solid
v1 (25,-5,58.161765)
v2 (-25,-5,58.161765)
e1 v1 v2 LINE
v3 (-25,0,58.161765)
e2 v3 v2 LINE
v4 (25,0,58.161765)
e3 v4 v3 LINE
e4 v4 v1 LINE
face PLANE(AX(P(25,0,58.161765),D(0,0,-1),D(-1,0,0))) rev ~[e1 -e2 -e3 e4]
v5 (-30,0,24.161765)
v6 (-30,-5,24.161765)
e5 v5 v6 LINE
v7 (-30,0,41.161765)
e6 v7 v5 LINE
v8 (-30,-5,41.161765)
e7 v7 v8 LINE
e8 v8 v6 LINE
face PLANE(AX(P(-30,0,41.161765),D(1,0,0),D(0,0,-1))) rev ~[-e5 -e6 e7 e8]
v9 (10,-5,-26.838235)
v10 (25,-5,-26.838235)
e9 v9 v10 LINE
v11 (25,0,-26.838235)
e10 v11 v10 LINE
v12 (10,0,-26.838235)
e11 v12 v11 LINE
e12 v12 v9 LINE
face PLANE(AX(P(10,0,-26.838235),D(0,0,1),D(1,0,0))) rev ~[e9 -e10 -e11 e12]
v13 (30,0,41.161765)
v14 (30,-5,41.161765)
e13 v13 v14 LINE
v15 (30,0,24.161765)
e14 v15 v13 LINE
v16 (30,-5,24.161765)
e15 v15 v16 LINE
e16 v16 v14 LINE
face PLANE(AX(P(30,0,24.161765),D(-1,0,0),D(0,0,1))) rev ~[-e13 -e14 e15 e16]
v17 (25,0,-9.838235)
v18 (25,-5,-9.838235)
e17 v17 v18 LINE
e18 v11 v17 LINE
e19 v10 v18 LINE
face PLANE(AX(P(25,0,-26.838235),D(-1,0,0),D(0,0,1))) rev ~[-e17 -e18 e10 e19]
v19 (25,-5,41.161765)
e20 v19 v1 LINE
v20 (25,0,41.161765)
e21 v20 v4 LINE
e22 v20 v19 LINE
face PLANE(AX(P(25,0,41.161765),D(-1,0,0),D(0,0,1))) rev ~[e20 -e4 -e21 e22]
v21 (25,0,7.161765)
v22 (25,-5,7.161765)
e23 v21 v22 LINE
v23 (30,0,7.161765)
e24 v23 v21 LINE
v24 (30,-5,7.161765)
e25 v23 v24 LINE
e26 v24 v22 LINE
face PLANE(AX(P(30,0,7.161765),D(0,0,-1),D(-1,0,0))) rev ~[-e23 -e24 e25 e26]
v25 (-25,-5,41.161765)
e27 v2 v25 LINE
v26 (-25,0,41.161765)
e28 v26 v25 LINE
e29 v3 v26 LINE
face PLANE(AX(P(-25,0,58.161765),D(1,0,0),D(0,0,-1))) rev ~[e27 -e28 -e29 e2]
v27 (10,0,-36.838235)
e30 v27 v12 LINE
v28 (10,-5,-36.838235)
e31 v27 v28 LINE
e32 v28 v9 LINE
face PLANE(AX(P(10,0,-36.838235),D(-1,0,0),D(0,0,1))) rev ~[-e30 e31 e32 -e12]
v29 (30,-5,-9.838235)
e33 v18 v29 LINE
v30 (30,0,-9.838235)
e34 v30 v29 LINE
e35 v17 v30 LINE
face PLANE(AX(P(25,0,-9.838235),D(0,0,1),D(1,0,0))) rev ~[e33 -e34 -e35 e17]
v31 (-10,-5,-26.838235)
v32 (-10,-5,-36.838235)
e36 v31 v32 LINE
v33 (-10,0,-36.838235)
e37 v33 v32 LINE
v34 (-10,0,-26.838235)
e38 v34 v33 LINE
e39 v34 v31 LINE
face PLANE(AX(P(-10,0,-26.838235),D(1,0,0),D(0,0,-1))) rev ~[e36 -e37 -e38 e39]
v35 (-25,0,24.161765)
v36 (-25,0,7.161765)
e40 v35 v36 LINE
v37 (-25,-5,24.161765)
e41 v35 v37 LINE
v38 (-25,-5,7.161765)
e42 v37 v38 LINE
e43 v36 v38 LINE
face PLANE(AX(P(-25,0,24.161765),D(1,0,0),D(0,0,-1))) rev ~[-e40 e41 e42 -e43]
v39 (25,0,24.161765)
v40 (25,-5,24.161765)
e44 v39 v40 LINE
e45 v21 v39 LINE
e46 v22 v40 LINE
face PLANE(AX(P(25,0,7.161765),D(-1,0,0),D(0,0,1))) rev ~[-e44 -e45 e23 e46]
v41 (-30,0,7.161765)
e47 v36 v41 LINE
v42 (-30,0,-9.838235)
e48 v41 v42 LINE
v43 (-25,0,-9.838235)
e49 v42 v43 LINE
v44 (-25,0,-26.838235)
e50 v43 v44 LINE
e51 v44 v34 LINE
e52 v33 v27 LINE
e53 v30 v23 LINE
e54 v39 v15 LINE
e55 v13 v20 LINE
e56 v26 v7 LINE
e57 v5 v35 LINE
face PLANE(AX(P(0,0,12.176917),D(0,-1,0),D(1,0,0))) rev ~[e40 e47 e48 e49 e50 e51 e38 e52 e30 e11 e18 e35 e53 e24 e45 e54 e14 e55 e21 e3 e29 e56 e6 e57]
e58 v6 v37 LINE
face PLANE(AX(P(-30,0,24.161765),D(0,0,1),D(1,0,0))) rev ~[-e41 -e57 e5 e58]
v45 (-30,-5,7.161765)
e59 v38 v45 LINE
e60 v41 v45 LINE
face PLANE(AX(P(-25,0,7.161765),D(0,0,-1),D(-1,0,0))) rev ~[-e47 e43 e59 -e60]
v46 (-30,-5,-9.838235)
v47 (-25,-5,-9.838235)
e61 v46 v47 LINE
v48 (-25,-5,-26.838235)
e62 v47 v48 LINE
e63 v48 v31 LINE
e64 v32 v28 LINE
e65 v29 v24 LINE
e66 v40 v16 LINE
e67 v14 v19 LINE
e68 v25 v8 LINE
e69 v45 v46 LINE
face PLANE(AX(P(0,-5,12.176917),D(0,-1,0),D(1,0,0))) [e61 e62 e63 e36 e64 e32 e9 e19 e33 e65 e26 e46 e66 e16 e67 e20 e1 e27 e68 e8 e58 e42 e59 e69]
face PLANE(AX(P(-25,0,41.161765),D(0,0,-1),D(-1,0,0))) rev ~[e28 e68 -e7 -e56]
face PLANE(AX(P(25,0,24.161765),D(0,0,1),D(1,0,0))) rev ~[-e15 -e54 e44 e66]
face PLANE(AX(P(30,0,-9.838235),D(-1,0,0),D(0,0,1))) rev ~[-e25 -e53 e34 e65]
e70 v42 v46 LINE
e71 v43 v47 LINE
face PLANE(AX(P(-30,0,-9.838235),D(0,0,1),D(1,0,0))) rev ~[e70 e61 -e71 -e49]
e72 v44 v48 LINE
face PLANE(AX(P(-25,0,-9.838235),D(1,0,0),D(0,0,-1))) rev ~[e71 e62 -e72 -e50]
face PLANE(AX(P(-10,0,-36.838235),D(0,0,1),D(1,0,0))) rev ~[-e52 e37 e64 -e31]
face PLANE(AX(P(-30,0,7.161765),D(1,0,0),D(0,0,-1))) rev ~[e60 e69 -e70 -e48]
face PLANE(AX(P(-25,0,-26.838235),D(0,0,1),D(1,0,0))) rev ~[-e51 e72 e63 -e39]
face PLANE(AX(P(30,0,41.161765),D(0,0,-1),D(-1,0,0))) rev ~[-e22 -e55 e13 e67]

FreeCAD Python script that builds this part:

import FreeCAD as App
import Part
import Sketcher

V = App.Vector

doc = App.newDocument("Part")
body = doc.addObject("PartDesign::Body", "Body")

# Sketch on XZ plane
sketch1 = body.newObject("Sketcher::SketchObject", "Sketch")
sketch1.AttachmentSupport = (doc.getObject("XZ_Plane"), [""])
sketch1.MapMode = "FlatFace"
sketch1.addGeometry([
    Part.LineSegment(V(25, 41, 0), V(25, 58, 0)),  # 0
    Part.LineSegment(V(25, 58, 0), V(-25, 58, 0)),  # 1
    Part.LineSegment(V(-25, 58, 0), V(-25, 41, 0)),  # 2
    Part.LineSegment(V(-25, 41, 0), V(-30, 41, 0)),  # 3
    Part.LineSegment(V(-30, 41, 0), V(-30, 24, 0)),  # 4
    Part.LineSegment(V(-30, 24, 0), V(-25, 24, 0)),  # 5
    Part.LineSegment(V(-25, 24, 0), V(-25, 7, 0)),  # 6
    Part.LineSegment(V(-25, 7, 0), V(-30, 7, 0)),  # 7
    Part.LineSegment(V(-30, 7, 0), V(-30, -10, 0)),  # 8
    Part.LineSegment(V(-30, -10, 0), V(-25, -10, 0)),  # 9
    Part.LineSegment(V(-25, -10, 0), V(-25, -27, 0)),  # 10
    Part.LineSegment(V(-25, -27, 0), V(-10, -27, 0)),  # 11
    Part.LineSegment(V(-10, -27, 0), V(-10, -37, 0)),  # 12
    Part.LineSegment(V(-10, -37, 0), V(10, -37, 0)),  # 13
    Part.LineSegment(V(10, -37, 0), V(10, -27, 0)),  # 14
    Part.LineSegment(V(10, -27, 0), V(25, -27, 0)),  # 15
    Part.LineSegment(V(25, -27, 0), V(25, -10, 0)),  # 16
    Part.LineSegment(V(25, -10, 0), V(30, -10, 0)),  # 17
    Part.LineSegment(V(30, -10, 0), V(30, 7, 0)),  # 18
    Part.LineSegment(V(30, 7, 0), V(25, 7, 0)),  # 19
    Part.LineSegment(V(25, 7, 0), V(25, 24, 0)),  # 20
    Part.LineSegment(V(25, 24, 0), V(30, 24, 0)),  # 21
    Part.LineSegment(V(30, 24, 0), V(30, 41, 0)),  # 22
    Part.LineSegment(V(30, 41, 0), V(25, 41, 0)),  # 23
], False)
sketch1.addConstraint([
    Sketcher.Constraint("Coincident", 0, 2, 1, 1),
    Sketcher.Constraint("Coincident", 1, 2, 2, 1),
    Sketcher.Constraint("Coincident", 2, 2, 3, 1),
    Sketcher.Constraint("Coincident", 3, 2, 4, 1),
    Sketcher.Constraint("Coincident", 4, 2, 5, 1),
    Sketcher.Constraint("Coincident", 5, 2, 6, 1),
    Sketcher.Constraint("Coincident", 6, 2, 7, 1),
    Sketcher.Constraint("Coincident", 7, 2, 8, 1),
    Sketcher.Constraint("Coincident", 8, 2, 9, 1),
    Sketcher.Constraint("Coincident", 9, 2, 10, 1),
    Sketcher.Constraint("Coincident", 10, 2, 11, 1),
    Sketcher.Constraint("Coincident", 11, 2, 12, 1),
    Sketcher.Constraint("Coincident", 12, 2, 13, 1),
    Sketcher.Constraint("Coincident", 13, 2, 14, 1),
    Sketcher.Constraint("Coincident", 14, 2, 15, 1),
    Sketcher.Constraint("Coincident", 15, 2, 16, 1),
    Sketcher.Constraint("Coincident", 16, 2, 17, 1),
    Sketcher.Constraint("Coincident", 17, 2, 18, 1),
    Sketcher.Constraint("Coincident", 18, 2, 19, 1),
    Sketcher.Constraint("Coincident", 19, 2, 20, 1),
    Sketcher.Constraint("Coincident", 20, 2, 21, 1),
    Sketcher.Constraint("Coincident", 21, 2, 22, 1),
    Sketcher.Constraint("Coincident", 22, 2, 23, 1),
    Sketcher.Constraint("Coincident", 23, 2, 0, 1),
    Sketcher.Constraint("Vertical", 0),
    Sketcher.Constraint("Horizontal", 1),
    Sketcher.Constraint("Vertical", 2),
    Sketcher.Constraint("Horizontal", 3),
    Sketcher.Constraint("Vertical", 4),
    Sketcher.Constraint("Horizontal", 5),
    Sketcher.Constraint("Vertical", 6),
    Sketcher.Constraint("Horizontal", 7),
    Sketcher.Constraint("Vertical", 8),
    Sketcher.Constraint("Horizontal", 9),
    Sketcher.Constraint("Vertical", 10),
    Sketcher.Constraint("Horizontal", 11),
    Sketcher.Constraint("Vertical", 12),
    Sketcher.Constraint("Horizontal", 13),
    Sketcher.Constraint("Vertical", 14),
    Sketcher.Constraint("Horizontal", 15),
    Sketcher.Constraint("Vertical", 16),
    Sketcher.Constraint("Horizontal", 17),
    Sketcher.Constraint("Vertical", 18),
    Sketcher.Constraint("Horizontal", 19),
    Sketcher.Constraint("Vertical", 20),
    Sketcher.Constraint("Horizontal", 21),
    Sketcher.Constraint("Vertical", 22),
    Sketcher.Constraint("Horizontal", 23),
    Sketcher.Constraint("Symmetric", 11, 2, 14, 2, -2),
    Sketcher.Constraint("Symmetric", 9, 2, 16, 2, -2),
    Sketcher.Constraint("Symmetric", 7, 2, 18, 2, -2),
    Sketcher.Constraint("Symmetric", 5, 2, 20, 2, -2),
    Sketcher.Constraint("Symmetric", 3, 2, 22, 2, -2),
    Sketcher.Constraint("Vertical", 2, 2, 5, 2),
    Sketcher.Constraint("Vertical", 4, 2, 7, 2),
    Sketcher.Constraint("Vertical", 6, 2, 9, 2),
    Sketcher.Constraint("Vertical", 0, 2, 15, 2),
    Sketcher.Constraint("Equal", 2, 4),
    Sketcher.Constraint("Equal", 4, 6),
    Sketcher.Constraint("Equal", 6, 8),
    Sketcher.Constraint("Equal", 8, 10),
    Sketcher.Constraint("DistanceX", 1, 2, 1, 1, 50.0),
    Sketcher.Constraint("DistanceX", 3, 2, 3, 1, 5.0),
    Sketcher.Constraint("DistanceX", 11, 1, 11, 2, 15.0),
    Sketcher.Constraint("DistanceY", 0, 1, 0, 2, 17.0),
    Sketcher.Constraint("DistanceY", 12, 2, 12, 1, 10.0),
    Sketcher.Constraint("DistanceY", -1, 1, 0, 2, 58.161765),
])
pad1 = body.newObject("PartDesign::Pad", "Pad")
pad1.Profile = sketch1
pad1.Length = 5

doc.recompute()
